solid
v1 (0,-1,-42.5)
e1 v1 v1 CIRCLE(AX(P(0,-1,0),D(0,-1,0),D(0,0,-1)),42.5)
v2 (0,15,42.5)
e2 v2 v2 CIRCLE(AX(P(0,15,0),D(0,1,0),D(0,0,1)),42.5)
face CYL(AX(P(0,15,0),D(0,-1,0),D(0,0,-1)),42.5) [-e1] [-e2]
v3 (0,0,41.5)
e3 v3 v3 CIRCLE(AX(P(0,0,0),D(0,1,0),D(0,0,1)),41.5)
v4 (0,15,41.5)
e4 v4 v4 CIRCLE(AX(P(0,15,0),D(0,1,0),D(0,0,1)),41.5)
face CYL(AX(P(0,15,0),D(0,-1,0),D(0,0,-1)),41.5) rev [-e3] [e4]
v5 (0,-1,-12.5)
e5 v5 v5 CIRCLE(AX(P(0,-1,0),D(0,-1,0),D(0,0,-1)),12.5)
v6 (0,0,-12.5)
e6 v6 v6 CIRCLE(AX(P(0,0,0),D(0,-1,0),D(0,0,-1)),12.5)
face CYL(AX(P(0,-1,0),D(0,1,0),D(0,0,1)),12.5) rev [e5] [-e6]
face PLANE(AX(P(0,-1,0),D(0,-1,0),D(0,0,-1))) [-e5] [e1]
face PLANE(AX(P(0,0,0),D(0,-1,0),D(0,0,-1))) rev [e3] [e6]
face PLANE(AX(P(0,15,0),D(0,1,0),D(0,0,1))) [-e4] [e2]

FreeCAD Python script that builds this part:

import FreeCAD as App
import Part
import Sketcher

V = App.Vector
Q = App.Units.Quantity

doc = App.newDocument("Part")
params = doc.addObject("Spreadsheet::Sheet", "Params")
for row, (alias, value) in enumerate([
    ("sketch1_diameter", "85 mm"),
    ("sketch1_diameter2", "83 mm"),
    ("pad1_length", "15 mm"),
    ("sketch2_diameter", "85 mm"),
    ("sketch2_diameter2", "25 mm"),
    ("pad2_length", "1 mm"),
], start=1):
    params.set(f"A{row}", alias)
    params.set(f"B{row}", "=" + value)
    params.setAlias(f"B{row}", alias)

body = doc.addObject("PartDesign::Body", "Body")

sketch1 = doc.addObject("Sketcher::SketchObject", "Sketch")
body.addObject(sketch1)
sketch1.AttachmentSupport = (doc.XZ_Plane, [""])
sketch1.MapMode = "FlatFace"
sketch1.addGeometry([
    Part.Circle(V(0, 0, 0), V(0, 0, 1), 42),
    Part.Circle(V(0, 0, 0), V(0, 0, 1), 42),
], False)
sketch1.addConstraint([
    Sketcher.Constraint("Coincident", 0, 3, -1, 1),
    Sketcher.Constraint("Coincident", 1, 3, -1, 1),
    Sketcher.Constraint("Diameter", 0, Q("85 mm")),
    Sketcher.Constraint("Diameter", 1, Q("83 mm")),
])
sketch1.setExpression("Constraints[2]", "Params.sketch1_diameter")
sketch1.setExpression("Constraints[3]", "Params.sketch1_diameter2")
pad1 = doc.addObject("PartDesign::Pad", "Pad")
body.addObject(pad1)
pad1.Profile = sketch1
pad1.setExpression("Length", "Params.pad1_length")
pad1.Reversed = True

sketch2 = doc.addObject("Sketcher::SketchObject", "Sketch001")
body.addObject(sketch2)
sketch2.AttachmentSupport = (doc.XZ_Plane, [""])
sketch2.MapMode = "FlatFace"
sketch2.AttachmentOffset = App.Placement(V(0, 0, 1), App.Rotation())
sketch2.addGeometry([
    Part.Circle(V(0, 0, 0), V(0, 0, 1), 42),
    Part.Circle(V(0, 0, 0), V(0, 0, 1), 12),
], False)
sketch2.addConstraint([
    Sketcher.Constraint("Coincident", 0, 3, -1, 1),
    Sketcher.Constraint("Coincident", 1, 3, -1, 1),
    Sketcher.Constraint("Diameter", 0, Q("85 mm")),
    Sketcher.Constraint("Diameter", 1, Q("25 mm")),
])
sketch2.setExpression("Constraints[2]", "Params.sketch2_diameter")
sketch2.setExpression("Constraints[3]", "Params.sketch2_diameter2")
pad2 = doc.addObject("PartDesign::Pad", "Pad001")
body.addObject(pad2)
pad2.Profile = sketch2
pad2.setExpression("Length", "Params.pad2_length")
pad2.Reversed = True

doc.recompute()
